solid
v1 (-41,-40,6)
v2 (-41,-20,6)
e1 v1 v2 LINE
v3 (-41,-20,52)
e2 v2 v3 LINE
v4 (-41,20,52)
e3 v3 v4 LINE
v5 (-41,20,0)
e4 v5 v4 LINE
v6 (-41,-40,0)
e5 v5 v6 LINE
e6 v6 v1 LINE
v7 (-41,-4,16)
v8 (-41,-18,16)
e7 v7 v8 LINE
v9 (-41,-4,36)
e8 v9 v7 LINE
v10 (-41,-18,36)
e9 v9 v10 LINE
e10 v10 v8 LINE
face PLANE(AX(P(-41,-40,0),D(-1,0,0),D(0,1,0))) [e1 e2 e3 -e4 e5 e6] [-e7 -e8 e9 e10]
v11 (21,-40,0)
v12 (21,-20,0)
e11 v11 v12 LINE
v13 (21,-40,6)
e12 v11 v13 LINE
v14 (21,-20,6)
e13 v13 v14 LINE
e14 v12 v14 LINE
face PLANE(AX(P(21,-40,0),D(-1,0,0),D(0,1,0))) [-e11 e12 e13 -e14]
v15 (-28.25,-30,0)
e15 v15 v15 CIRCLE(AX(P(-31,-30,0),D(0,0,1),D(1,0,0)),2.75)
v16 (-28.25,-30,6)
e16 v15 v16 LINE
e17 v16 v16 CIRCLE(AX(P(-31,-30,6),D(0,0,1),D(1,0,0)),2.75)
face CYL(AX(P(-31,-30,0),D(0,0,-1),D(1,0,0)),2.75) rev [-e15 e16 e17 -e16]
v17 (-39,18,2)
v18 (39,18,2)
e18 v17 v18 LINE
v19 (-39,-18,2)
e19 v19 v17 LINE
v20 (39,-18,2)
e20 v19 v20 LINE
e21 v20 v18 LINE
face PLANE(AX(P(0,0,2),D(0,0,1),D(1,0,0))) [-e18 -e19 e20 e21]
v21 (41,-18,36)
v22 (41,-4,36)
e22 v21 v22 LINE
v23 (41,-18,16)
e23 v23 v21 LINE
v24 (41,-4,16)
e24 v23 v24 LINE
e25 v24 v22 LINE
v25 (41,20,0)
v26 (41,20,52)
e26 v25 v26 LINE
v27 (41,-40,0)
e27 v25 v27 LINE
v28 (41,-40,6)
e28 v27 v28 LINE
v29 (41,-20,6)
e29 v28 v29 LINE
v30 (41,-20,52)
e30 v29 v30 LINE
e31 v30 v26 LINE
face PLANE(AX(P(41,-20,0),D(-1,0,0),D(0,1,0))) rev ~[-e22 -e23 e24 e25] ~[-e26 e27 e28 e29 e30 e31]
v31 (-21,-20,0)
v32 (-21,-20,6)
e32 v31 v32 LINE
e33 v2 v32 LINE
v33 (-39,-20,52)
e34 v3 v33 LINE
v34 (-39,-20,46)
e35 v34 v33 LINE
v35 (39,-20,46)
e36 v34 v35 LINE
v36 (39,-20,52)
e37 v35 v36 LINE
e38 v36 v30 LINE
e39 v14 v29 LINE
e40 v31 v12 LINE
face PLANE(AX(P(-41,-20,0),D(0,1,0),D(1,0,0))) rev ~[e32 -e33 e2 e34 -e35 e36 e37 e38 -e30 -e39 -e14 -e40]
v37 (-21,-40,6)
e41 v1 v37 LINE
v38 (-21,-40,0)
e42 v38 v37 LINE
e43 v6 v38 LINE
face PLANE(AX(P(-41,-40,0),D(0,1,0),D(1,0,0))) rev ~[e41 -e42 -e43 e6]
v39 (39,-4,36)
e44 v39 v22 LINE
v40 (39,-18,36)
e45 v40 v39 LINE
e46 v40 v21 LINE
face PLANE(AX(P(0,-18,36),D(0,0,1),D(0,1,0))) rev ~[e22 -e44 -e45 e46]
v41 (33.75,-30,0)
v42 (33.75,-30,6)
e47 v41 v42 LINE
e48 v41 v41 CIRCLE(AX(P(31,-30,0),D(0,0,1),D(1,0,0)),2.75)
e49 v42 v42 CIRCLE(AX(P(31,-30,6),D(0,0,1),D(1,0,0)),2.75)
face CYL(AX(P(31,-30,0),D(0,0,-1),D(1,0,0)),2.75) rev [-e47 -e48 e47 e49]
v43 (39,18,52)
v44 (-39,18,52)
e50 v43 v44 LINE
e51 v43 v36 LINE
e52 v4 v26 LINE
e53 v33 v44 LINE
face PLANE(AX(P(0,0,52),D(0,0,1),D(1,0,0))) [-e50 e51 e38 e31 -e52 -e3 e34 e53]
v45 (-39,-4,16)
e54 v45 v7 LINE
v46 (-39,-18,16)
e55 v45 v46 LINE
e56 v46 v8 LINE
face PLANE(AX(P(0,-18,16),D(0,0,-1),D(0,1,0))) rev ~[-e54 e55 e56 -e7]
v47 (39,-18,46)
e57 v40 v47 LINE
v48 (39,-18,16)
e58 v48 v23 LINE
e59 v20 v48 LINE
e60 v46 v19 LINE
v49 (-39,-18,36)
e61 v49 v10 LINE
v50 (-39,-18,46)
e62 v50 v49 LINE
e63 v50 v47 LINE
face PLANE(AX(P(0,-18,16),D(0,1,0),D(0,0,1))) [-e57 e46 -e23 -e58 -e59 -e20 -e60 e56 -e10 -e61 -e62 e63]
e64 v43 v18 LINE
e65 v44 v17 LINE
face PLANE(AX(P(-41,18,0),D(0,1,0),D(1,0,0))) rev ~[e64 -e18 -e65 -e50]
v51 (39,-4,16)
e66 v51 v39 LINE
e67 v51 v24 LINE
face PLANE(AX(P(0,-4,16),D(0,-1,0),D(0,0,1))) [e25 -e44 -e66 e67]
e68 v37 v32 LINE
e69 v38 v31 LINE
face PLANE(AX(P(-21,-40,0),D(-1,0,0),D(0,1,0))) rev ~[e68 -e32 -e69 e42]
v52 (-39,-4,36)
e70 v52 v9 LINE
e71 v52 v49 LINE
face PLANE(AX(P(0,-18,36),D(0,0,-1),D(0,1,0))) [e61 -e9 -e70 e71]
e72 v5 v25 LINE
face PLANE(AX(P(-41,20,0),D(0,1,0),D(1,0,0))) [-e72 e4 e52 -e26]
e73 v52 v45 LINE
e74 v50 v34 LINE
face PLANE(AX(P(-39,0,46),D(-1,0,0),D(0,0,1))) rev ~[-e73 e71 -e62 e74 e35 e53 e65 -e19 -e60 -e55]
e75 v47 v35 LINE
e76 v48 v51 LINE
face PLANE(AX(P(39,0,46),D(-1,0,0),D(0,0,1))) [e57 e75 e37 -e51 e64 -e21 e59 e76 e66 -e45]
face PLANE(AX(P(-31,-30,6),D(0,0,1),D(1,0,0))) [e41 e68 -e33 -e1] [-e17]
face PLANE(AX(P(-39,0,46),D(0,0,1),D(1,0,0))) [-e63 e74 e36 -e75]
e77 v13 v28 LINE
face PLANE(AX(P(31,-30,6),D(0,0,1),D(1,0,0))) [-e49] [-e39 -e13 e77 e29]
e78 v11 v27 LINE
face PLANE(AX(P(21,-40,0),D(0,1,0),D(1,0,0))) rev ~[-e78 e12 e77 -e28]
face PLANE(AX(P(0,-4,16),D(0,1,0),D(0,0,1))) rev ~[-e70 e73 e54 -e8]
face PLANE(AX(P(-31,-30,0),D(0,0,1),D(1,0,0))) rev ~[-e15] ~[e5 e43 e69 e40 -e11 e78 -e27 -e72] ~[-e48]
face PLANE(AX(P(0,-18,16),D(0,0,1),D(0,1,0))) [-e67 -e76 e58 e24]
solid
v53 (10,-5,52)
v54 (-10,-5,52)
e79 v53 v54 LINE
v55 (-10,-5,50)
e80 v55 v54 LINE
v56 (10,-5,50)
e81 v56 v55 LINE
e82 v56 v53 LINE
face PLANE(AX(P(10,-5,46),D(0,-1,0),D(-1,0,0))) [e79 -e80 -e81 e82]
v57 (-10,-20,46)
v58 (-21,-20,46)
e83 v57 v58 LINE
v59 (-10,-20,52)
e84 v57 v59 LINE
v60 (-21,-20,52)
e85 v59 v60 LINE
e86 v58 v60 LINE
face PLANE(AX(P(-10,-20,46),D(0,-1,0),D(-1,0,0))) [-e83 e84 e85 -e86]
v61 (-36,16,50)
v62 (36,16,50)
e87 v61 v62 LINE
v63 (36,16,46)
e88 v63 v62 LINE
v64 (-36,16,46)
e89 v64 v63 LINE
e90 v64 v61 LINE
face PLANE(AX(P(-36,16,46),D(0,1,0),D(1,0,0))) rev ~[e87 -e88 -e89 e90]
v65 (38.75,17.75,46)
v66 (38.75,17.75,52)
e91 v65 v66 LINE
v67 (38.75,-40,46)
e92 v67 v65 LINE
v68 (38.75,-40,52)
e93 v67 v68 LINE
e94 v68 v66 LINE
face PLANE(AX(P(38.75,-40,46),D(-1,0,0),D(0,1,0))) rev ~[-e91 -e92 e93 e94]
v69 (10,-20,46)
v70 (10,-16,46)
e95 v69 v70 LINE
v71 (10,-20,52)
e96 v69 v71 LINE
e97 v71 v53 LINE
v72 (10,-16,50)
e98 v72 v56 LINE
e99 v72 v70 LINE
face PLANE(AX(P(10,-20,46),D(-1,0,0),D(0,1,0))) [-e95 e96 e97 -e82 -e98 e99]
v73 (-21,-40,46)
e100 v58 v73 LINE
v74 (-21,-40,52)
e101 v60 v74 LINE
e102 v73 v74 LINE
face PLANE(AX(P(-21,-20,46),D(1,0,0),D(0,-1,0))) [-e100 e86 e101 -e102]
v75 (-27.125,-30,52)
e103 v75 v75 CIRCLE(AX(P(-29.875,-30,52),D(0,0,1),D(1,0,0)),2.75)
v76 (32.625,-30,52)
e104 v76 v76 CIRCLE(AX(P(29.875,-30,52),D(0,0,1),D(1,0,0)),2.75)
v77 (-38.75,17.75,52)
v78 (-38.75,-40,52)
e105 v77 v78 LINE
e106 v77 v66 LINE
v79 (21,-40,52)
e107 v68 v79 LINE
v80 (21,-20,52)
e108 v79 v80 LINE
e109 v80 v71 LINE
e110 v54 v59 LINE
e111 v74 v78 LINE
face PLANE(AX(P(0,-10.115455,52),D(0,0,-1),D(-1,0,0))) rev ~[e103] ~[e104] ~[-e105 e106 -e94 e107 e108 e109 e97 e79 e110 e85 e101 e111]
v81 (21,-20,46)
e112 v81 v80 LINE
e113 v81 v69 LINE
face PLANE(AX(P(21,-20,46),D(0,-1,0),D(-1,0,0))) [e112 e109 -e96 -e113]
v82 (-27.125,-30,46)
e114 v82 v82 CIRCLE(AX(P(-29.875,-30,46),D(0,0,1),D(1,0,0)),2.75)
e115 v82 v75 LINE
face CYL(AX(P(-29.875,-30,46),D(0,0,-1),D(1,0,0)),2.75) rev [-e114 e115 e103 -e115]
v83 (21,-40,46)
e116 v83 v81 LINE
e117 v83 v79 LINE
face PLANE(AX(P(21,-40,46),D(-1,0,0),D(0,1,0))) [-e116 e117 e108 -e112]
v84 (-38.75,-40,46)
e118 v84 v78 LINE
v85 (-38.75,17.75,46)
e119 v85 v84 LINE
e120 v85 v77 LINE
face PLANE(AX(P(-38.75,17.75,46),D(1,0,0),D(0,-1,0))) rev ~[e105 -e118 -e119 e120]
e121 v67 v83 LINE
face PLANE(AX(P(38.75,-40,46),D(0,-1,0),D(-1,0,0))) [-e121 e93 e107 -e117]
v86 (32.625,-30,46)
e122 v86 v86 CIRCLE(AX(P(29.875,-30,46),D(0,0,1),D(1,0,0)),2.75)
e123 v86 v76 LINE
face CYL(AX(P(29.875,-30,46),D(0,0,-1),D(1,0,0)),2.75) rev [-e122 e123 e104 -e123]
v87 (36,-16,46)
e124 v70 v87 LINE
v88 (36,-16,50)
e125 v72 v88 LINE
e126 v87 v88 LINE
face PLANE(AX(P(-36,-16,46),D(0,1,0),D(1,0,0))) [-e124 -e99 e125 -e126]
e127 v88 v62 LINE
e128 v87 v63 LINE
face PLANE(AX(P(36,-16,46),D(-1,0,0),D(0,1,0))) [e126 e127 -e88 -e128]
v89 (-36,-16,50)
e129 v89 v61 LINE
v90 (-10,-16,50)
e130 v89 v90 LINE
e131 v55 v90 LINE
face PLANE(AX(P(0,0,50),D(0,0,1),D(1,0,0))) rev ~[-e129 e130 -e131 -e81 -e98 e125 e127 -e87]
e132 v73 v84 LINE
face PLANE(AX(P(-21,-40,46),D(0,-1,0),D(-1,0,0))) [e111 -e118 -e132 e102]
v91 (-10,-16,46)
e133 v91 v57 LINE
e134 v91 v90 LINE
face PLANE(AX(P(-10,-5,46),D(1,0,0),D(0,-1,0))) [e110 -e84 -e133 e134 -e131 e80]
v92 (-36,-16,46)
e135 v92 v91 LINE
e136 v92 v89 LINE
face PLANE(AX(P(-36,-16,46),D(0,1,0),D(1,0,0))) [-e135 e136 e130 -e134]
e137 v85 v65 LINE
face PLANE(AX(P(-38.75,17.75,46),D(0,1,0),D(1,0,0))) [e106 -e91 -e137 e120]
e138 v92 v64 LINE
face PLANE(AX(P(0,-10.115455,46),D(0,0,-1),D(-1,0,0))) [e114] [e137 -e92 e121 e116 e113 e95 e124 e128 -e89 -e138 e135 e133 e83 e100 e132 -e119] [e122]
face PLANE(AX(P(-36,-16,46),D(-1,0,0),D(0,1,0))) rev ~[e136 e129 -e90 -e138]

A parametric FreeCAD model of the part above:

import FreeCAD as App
import Part
import Sketcher
from FreeCAD import Vector


def faces_at(feature, points):
    """Names of the faces that lie closest to the given points."""
    faces = feature.Shape.Faces
    near = lambda p: min(range(len(faces)), key=lambda i: faces[i].distToShape(Part.Vertex(*p))[0])
    return sorted({f"Face{near(p) + 1}" for p in points})


def add_polygon(sketch, points):
    """Adds a closed chain of lines whose ends are joined by coincident constraints."""
    first, n = sketch.GeometryCount, len(points)
    for a, b in zip(points, points[1:] + points[:1]):
        sketch.addGeometry(Part.LineSegment(App.Vector(*a, 0), App.Vector(*b, 0)), False)
    for i in range(n):
        sketch.addConstraint(Sketcher.Constraint("Coincident", first + i, 2, first + (i + 1) % n, 1))

doc = App.newDocument("Part")
params = doc.addObject("Spreadsheet::Sheet", "Params")
for row, (alias, value) in enumerate([
    ("sketch1_width", "82 mm"),
    ("sketch1_height", "40 mm"),
    ("pad1_length", "52 mm"),
    ("thickness_wall", "2 mm"),
    ("sketch2_diameter", "5.5 mm"),
    ("sketch2_width", "20 mm"),
    ("pad2_length", "6 mm"),
    ("sketch3_width", "14 mm"),
    ("sketch3_height", "20 mm"),
    ("sketch4_width", "78 mm"),
    ("sketch4_height", "10 mm"),
    ("sketch5_diameter", "5.5 mm"),
    ("sketch5_width", "11 mm"),
    ("sketch5_width2", "20 mm"),
    ("sketch5_height", "15 mm"),
    ("sketch5_width3", "77.5 mm"),
    ("pad3_length", "6 mm"),
    ("sketch6_width", "72 mm"),
    ("sketch6_height", "32 mm"),
    ("pocket3_length", "4 mm"),
], start=1):
    params.set(f"A{row}", alias)
    params.set(f"B{row}", "=" + value)
    params.setAlias(f"B{row}", alias)

body = doc.addObject("PartDesign::Body", "Body")

# Sketch on XY plane
sketch1 = body.newObject("Sketcher::SketchObject", "Sketch")
sketch1.AttachmentSupport = (doc.getObject("XY_Plane"), [""])
sketch1.MapMode = "FlatFace"
add_polygon(sketch1, [(-41, 20), (-41, -20), (41, -20), (41, 20)])  # lines 0-3
sketch1.addConstraint([
    Sketcher.Constraint("Vertical", 0),
    Sketcher.Constraint("Horizontal", 1),
    Sketcher.Constraint("Vertical", 2),
    Sketcher.Constraint("Horizontal", 3),
    Sketcher.Constraint("Symmetric", 0, 2, 2, 2, -1, 1),
    Sketcher.Constraint("DistanceX", 1, 1, 1, 2, 82.0),
    Sketcher.Constraint("DistanceY", 0, 2, 0, 1, 40.0),
])
sketch1.setExpression("Constraints[9]", "Params.sketch1_width")
sketch1.setExpression("Constraints[10]", "Params.sketch1_height")
pad1 = body.newObject("PartDesign::Pad", "Pad")
pad1.Profile = sketch1
pad1.setExpression("Length", "Params.pad1_length")
doc.recompute()

thickness = body.newObject("PartDesign::Thickness", "Thickness")
thickness.Base = (pad1, faces_at(pad1, [(0, 0, 52)]))
thickness.setExpression("Value", "Params.thickness_wall")
thickness.Reversed = True
thickness.Join = "Intersection"

# Sketch on XY plane
sketch2 = body.newObject("Sketcher::SketchObject", "Sketch001")
sketch2.AttachmentSupport = (doc.getObject("XY_Plane"), [""])
sketch2.MapMode = "FlatFace"
add_polygon(sketch2, [(-41, -20), (-41, -40), (-21, -40), (-21, -20)])  # lines 0-3
sketch2.addGeometry(Part.Circle(Vector(-31, -30, 0), Vector(0, 0, 1), 2.8), False)  # 4
add_polygon(sketch2, [(21, -20), (21, -40), (41, -40), (41, -20)])  # lines 5-8
sketch2.addGeometry(Part.Circle(Vector(31, -30, 0), Vector(0, 0, 1), 2.8), False)  # 9
sketch2.addConstraint([
    Sketcher.Constraint("Vertical", 0),
    Sketcher.Constraint("Horizontal", 1),
    Sketcher.Constraint("Vertical", 2),
    Sketcher.Constraint("Horizontal", 3),
    Sketcher.Constraint("Vertical", 5),
    Sketcher.Constraint("Horizontal", 6),
    Sketcher.Constraint("Vertical", 7),
    Sketcher.Constraint("Horizontal", 8),
    Sketcher.Constraint("Equal", 4, 9),
    Sketcher.Constraint("Symmetric", 4, 3, 9, 3, -2),
    Sketcher.Constraint("Symmetric", 1, 2, 5, 2, -2),
    Sketcher.Constraint("Symmetric", 3, 2, 7, 2, -2),
    Sketcher.Constraint("Equal", 8, 0),
    Sketcher.Constraint("Diameter", 4, 5.5),
    Sketcher.Constraint("DistanceX", 1, 1, 1, 2, 20.0),
    Sketcher.Constraint("DistanceX", 4, 3, -1, 1, 31.0),
    Sketcher.Constraint("DistanceY", 4, 3, -1, 1, 30.0),
    Sketcher.Constraint("DistanceX", 0, 2, -1, 1, 41.0),
    Sketcher.Constraint("DistanceY", 0, 2, -1, 1, 40.0),
])
sketch2.setExpression("Constraints[21]", "Params.sketch2_diameter")
sketch2.setExpression("Constraints[22]", "Params.sketch2_width")
pad2 = body.newObject("PartDesign::Pad", "Pad001")
pad2.Profile = sketch2
pad2.setExpression("Length", "Params.pad2_length")

# Sketch on YZ plane
sketch3 = body.newObject("Sketcher::SketchObject", "Sketch002")
sketch3.AttachmentSupport = (doc.getObject("YZ_Plane"), [""])
sketch3.MapMode = "FlatFace"
add_polygon(sketch3, [(-18, 36), (-18, 16), (-4, 16), (-4, 36)])  # lines 0-3
sketch3.addConstraint([
    Sketcher.Constraint("Vertical", 0),
    Sketcher.Constraint("Horizontal", 1),
    Sketcher.Constraint("Vertical", 2),
    Sketcher.Constraint("Horizontal", 3),
    Sketcher.Constraint("DistanceX", 1, 1, 1, 2, 14.0),
    Sketcher.Constraint("DistanceY", 0, 2, 0, 1, 20.0),
    Sketcher.Constraint("DistanceX", 0, 2, -1, 1, 18.0),
    Sketcher.Constraint("DistanceY", -1, 1, 0, 2, 16.0),
])
sketch3.setExpression("Constraints[8]", "Params.sketch3_width")
sketch3.setExpression("Constraints[9]", "Params.sketch3_height")
pocket1 = body.newObject("PartDesign::Pocket", "Pocket")
pocket1.Profile = sketch3
pocket1.Type = "ThroughAll"
pocket1.Midplane = True

# Sketch on XZ plane
sketch4 = body.newObject("Sketcher::SketchObject", "Sketch003")
sketch4.AttachmentSupport = (doc.getObject("XZ_Plane"), [""])
sketch4.MapMode = "FlatFace"
add_polygon(sketch4, [(-39, 56), (-39, 46), (39, 46), (39, 56)])  # lines 0-3
sketch4.addConstraint([
    Sketcher.Constraint("Vertical", 0),
    Sketcher.Constraint("Horizontal", 1),
    Sketcher.Constraint("Vertical", 2),
    Sketcher.Constraint("Horizontal", 3),
    Sketcher.Constraint("DistanceX", 1, 1, 1, 2, 78.0),
    Sketcher.Constraint("DistanceY", 0, 2, 0, 1, 10.0),
    Sketcher.Constraint("DistanceX", 0, 2, -1, 1, 39.0),
    Sketcher.Constraint("DistanceY", -1, 1, 0, 2, 46.0),
])
sketch4.setExpression("Constraints[8]", "Params.sketch4_width")
sketch4.setExpression("Constraints[9]", "Params.sketch4_height")
pocket2 = body.newObject("PartDesign::Pocket", "Pocket001")
pocket2.Profile = sketch4
pocket2.Type = "ThroughAll"
pocket2.Reversed = True
body2 = doc.addObject("PartDesign::Body", "Body001")

# Sketch on XY plane
sketch5 = body2.newObject("Sketcher::SketchObject", "Sketch004")
sketch5.AttachmentSupport = (doc.getObject("XY_Plane001"), [""])
sketch5.MapMode = "FlatFace"
add_polygon(sketch5, [(38.8, 17.8), (-38.8, 17.8), (-38.8, -40), (-21, -40), (-21, -20), (-10, -20), (-10, -5), (10, -5), (10, -20), (21, -20), (21, -40), (38.8, -40)])  # lines 0-11
sketch5.addGeometry(Part.Circle(Vector(29.9, -30, 0), Vector(0, 0, 1), 2.8), False)  # 12
sketch5.addGeometry(Part.Circle(Vector(-29.9, -30, 0), Vector(0, 0, 1), 2.8), False)  # 13
sketch5.addConstraint([
    Sketcher.Constraint("Horizontal", 0),
    Sketcher.Constraint("Vertical", 1),
    Sketcher.Constraint("Horizontal", 2),
    Sketcher.Constraint("Vertical", 3),
    Sketcher.Constraint("Horizontal", 4),
    Sketcher.Constraint("Vertical", 5),
    Sketcher.Constraint("Horizontal", 6),
    Sketcher.Constraint("Vertical", 7),
    Sketcher.Constraint("Horizontal", 8),
    Sketcher.Constraint("Vertical", 9),
    Sketcher.Constraint("Horizontal", 10),
    Sketcher.Constraint("Vertical", 11),
    Sketcher.Constraint("Equal", 12, 13),
    Sketcher.Constraint("Symmetric", 12, 3, 13, 3, -2),
    Sketcher.Constraint("Symmetric", 4, 2, 7, 2, -2),
    Sketcher.Constraint("Symmetric", 2, 2, 9, 2, -2),
    Sketcher.Constraint("Equal", 2, 10),
    Sketcher.Constraint("Equal", 6, 3),
    Sketcher.Constraint("Diameter", 12, 5.5),
    Sketcher.Constraint("DistanceX", 4, 1, 4, 2, 11.0),
    Sketcher.Constraint("DistanceX", 6, 1, 6, 2, 20.0),
    Sketcher.Constraint("DistanceY", 5, 1, 5, 2, 15.0),
    Sketcher.Constraint("DistanceX", 0, 2, 0, 1, 77.5),
    Sketcher.Constraint("DistanceY", 12, 3, -1, 1, 30.0),
    Sketcher.Constraint("DistanceY", 1, 2, -1, 1, 40.0),
    Sketcher.Constraint("DistanceY", 1, 2, 1, 1, 57.75),
    Sketcher.Constraint("DistanceX", 13, 3, 12, 3, 59.75),
])
sketch5.setExpression("Constraints[30]", "Params.sketch5_diameter")
sketch5.setExpression("Constraints[31]", "Params.sketch5_width")
sketch5.setExpression("Constraints[32]", "Params.sketch5_width2")
sketch5.setExpression("Constraints[33]", "Params.sketch5_height")
sketch5.setExpression("Constraints[34]", "Params.sketch5_width3")
pad3 = body2.newObject("PartDesign::Pad", "Pad002")
pad3.Profile = sketch5
pad3.setExpression("Length", "Params.pad3_length")

# Sketch on XY plane
sketch6 = body2.newObject("Sketcher::SketchObject", "Sketch005")
sketch6.AttachmentSupport = (doc.getObject("XY_Plane001"), [""])
sketch6.MapMode = "FlatFace"
add_polygon(sketch6, [(-36, 16), (-36, -16), (36, -16), (36, 16)])  # lines 0-3
sketch6.addConstraint([
    Sketcher.Constraint("Vertical", 0),
    Sketcher.Constraint("Horizontal", 1),
    Sketcher.Constraint("Vertical", 2),
    Sketcher.Constraint("Horizontal", 3),
    Sketcher.Constraint("Symmetric", 0, 2, 2, 2, -1, 1),
    Sketcher.Constraint("DistanceX", 1, 1, 1, 2, 72.0),
    Sketcher.Constraint("DistanceY", 0, 2, 0, 1, 32.0),
])
sketch6.setExpression("Constraints[9]", "Params.sketch6_width")
sketch6.setExpression("Constraints[10]", "Params.sketch6_height")
pocket3 = body2.newObject("PartDesign::Pocket", "Pocket002")
pocket3.Profile = sketch6
pocket3.setExpression("Length", "Params.pocket3_length")
pocket3.Reversed = True
body3 = doc.addObject("PartDesign::Body", "Body002")
doc.recompute()

body2.Placement = App.Placement(Vector(0, 0, 46), App.Rotation(Vector(0, 0, 1), 0))
boolean = body3.newObject("PartDesign::Boolean", "Boolean")
boolean.Type = "Fuse"
boolean.addObjects([body2])

doc.recompute()
